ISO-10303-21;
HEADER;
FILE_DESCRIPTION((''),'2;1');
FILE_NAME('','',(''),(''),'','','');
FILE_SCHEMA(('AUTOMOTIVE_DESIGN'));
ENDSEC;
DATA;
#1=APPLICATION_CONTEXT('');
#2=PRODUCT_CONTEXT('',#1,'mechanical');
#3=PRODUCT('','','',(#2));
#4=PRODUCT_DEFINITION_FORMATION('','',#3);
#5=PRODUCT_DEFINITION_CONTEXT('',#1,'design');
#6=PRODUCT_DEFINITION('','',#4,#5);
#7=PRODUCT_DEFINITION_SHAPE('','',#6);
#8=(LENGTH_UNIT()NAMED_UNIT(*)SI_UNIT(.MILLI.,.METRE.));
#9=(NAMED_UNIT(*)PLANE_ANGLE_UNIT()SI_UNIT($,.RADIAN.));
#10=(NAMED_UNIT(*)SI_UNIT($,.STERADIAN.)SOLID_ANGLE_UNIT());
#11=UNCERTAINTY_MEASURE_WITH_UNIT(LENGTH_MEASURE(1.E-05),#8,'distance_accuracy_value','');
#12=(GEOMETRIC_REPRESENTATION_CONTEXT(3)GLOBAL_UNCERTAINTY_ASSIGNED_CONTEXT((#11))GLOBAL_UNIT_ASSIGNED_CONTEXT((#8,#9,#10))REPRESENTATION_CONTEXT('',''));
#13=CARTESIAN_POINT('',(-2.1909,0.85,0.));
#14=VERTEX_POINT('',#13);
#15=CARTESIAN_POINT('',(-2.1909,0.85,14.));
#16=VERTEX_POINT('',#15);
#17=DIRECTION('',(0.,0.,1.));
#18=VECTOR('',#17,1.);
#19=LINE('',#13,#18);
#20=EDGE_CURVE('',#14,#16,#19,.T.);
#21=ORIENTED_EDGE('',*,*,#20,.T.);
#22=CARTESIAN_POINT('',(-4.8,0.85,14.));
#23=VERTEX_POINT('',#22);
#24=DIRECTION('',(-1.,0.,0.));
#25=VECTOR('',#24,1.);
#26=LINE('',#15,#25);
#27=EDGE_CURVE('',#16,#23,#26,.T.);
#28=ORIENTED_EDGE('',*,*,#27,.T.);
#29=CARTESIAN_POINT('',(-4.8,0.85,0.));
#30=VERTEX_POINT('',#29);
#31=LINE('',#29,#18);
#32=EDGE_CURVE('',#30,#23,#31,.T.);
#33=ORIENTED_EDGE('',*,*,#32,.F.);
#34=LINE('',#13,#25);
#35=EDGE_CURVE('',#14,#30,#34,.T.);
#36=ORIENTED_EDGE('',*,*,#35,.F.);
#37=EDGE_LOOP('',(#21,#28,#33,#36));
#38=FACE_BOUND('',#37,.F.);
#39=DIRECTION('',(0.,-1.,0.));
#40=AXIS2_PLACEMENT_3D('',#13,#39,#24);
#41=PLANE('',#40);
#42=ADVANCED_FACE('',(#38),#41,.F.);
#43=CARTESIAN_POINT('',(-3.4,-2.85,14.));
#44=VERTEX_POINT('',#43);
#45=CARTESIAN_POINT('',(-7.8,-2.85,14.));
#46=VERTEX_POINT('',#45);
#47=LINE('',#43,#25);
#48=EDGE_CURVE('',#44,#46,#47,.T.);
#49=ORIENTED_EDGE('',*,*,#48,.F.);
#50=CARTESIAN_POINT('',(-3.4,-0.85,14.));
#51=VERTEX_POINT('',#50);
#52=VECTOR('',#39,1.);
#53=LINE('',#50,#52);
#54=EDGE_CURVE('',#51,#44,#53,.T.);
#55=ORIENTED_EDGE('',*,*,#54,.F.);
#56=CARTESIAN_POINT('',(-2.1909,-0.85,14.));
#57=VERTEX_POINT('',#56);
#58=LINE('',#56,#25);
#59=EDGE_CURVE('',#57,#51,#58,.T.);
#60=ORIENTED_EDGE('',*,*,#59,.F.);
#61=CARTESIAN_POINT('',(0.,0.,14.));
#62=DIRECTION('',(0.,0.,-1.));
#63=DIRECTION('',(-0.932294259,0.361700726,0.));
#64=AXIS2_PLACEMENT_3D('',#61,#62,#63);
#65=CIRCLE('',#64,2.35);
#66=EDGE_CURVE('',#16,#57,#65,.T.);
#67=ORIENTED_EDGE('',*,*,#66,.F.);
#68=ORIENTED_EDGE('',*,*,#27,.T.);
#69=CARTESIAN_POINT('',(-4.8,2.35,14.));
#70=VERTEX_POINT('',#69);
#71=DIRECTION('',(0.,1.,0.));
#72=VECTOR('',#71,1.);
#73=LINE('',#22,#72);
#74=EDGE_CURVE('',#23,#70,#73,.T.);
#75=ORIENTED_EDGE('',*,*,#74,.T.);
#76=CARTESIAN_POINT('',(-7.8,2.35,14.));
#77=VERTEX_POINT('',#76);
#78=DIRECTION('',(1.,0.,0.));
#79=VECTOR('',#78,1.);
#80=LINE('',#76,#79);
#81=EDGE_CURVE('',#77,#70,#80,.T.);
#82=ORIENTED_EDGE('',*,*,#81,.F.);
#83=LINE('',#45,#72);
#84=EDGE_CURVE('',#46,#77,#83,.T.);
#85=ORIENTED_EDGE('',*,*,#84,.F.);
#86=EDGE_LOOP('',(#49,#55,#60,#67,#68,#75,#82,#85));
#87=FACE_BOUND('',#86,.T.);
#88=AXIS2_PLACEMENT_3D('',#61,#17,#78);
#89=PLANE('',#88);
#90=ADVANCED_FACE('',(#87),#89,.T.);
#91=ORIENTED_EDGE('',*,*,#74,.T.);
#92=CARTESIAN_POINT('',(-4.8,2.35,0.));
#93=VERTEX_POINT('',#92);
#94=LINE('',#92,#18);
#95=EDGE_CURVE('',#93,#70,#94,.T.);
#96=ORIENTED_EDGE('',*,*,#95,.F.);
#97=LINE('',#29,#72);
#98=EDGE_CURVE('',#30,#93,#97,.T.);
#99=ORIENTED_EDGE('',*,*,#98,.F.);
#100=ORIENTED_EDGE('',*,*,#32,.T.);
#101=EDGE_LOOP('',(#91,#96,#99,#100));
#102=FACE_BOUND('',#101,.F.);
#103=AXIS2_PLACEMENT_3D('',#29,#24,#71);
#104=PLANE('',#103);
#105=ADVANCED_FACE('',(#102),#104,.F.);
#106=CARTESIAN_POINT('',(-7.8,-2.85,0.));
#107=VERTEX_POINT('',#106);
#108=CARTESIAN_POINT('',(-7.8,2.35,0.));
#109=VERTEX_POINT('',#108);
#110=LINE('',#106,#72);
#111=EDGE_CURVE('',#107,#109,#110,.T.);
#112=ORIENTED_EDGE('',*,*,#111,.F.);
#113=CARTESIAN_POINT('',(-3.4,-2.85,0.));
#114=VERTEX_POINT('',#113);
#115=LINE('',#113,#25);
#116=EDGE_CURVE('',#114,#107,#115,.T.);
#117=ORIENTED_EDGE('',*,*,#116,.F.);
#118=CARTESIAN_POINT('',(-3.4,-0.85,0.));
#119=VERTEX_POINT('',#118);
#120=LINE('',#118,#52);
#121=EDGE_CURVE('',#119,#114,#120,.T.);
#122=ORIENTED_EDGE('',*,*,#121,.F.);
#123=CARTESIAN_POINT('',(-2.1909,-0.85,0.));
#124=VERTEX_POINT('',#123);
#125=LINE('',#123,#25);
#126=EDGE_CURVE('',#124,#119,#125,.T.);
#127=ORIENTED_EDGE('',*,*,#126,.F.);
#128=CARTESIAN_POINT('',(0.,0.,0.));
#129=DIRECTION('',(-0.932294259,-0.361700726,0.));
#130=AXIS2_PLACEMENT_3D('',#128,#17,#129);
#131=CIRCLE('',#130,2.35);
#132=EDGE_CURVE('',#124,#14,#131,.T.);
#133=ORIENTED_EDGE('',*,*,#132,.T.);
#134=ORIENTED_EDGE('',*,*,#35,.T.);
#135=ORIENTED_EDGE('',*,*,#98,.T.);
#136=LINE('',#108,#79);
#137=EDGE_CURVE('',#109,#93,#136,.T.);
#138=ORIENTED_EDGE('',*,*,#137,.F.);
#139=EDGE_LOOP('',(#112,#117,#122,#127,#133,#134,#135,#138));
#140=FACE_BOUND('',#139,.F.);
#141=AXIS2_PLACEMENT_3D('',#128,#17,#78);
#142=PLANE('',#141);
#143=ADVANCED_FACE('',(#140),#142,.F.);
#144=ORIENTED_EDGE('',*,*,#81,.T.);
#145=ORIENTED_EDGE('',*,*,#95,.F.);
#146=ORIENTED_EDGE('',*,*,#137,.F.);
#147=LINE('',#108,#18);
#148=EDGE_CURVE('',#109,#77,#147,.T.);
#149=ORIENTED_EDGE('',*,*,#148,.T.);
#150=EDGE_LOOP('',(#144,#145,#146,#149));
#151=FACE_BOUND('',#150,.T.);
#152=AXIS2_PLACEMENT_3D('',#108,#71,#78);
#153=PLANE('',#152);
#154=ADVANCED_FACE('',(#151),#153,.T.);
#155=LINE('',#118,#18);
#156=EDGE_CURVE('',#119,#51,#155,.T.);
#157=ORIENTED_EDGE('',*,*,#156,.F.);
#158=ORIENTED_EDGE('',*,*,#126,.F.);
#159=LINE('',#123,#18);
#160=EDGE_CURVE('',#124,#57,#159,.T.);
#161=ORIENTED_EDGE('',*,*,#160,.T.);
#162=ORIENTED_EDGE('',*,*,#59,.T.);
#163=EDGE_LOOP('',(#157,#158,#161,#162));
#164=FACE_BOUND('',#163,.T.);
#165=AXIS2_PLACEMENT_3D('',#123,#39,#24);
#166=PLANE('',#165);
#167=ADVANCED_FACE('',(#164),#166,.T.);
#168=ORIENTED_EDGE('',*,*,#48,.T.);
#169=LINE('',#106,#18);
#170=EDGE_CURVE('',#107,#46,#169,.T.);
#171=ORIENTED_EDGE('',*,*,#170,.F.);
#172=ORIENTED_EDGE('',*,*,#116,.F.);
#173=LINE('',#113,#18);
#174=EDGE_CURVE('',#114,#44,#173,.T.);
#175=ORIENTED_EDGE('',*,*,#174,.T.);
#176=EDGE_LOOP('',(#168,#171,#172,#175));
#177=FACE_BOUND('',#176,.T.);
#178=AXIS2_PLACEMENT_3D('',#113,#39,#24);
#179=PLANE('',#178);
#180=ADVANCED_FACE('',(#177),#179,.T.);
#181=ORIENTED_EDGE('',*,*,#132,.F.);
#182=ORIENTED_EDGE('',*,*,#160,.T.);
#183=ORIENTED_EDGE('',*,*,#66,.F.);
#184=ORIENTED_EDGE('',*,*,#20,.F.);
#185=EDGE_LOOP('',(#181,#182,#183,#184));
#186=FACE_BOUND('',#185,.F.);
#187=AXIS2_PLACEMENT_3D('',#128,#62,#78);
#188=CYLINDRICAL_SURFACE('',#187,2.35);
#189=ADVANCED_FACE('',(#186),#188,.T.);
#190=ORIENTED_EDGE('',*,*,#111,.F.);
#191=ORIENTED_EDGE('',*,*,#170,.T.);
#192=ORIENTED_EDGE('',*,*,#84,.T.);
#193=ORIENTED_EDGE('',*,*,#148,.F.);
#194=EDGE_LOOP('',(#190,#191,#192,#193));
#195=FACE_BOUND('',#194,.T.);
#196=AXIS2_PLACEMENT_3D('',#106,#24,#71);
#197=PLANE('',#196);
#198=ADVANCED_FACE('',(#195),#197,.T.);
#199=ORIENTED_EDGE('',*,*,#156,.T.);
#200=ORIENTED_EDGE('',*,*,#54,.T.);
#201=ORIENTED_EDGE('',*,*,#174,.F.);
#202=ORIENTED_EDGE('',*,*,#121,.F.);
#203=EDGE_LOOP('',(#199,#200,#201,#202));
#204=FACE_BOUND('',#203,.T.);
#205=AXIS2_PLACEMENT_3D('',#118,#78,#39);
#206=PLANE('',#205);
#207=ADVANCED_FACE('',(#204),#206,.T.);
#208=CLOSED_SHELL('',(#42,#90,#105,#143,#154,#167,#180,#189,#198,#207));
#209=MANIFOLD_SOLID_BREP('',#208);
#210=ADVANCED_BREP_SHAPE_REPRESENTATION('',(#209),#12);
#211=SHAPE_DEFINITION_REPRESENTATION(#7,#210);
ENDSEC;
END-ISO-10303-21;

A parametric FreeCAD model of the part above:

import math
import FreeCAD as App
import Part
import Sketcher

V = App.Vector

doc = App.newDocument("Part")
body = doc.addObject("PartDesign::Body", "Body")

sketch1 = doc.addObject("Sketcher::SketchObject", "Sketch")
body.addObject(sketch1)
sketch1.AttachmentSupport = (doc.XY_Plane, [""])
sketch1.MapMode = "FlatFace"
sketch1.addGeometry(Part.ArcOfCircle(Part.Circle(V(0, 0, 0), V(0, 0, 1), 2.4), math.radians(-159), math.radians(159)), False)
sketch1.addGeometry(Part.LineSegment(V(-2.2, 0.8, 0), V(-4.8, 0.8, 0)), False)
sketch1.addGeometry(Part.LineSegment(V(-4.8, 0.8, 0), V(-4.8, 2.4, 0)), False)
sketch1.addGeometry(Part.LineSegment(V(-4.8, 2.4, 0), V(-7.8, 2.4, 0)), False)
sketch1.addGeometry(Part.LineSegment(V(-7.8, 2.4, 0), V(-7.8, -2.9, 0)), False)
sketch1.addGeometry(Part.LineSegment(V(-7.8, -2.9, 0), V(-3.4, -2.9, 0)), False)
sketch1.addGeometry(Part.LineSegment(V(-3.4, -2.9, 0), V(-3.4, -0.8, 0)), False)
sketch1.addGeometry(Part.LineSegment(V(-3.4, -0.8, 0), V(-2.2, -0.8, 0)), False)
sketch1.addConstraint(Sketcher.Constraint("Coincident", 0, 2, 1, 1))
sketch1.addConstraint(Sketcher.Constraint("Coincident", 1, 2, 2, 1))
sketch1.addConstraint(Sketcher.Constraint("Coincident", 2, 2, 3, 1))
sketch1.addConstraint(Sketcher.Constraint("Coincident", 3, 2, 4, 1))
sketch1.addConstraint(Sketcher.Constraint("Coincident", 4, 2, 5, 1))
sketch1.addConstraint(Sketcher.Constraint("Coincident", 5, 2, 6, 1))
sketch1.addConstraint(Sketcher.Constraint("Coincident", 6, 2, 7, 1))
sketch1.addConstraint(Sketcher.Constraint("Coincident", 7, 2, 0, 1))
sketch1.addConstraint(Sketcher.Constraint("Horizontal", 1))
sketch1.addConstraint(Sketcher.Constraint("Vertical", 2))
sketch1.addConstraint(Sketcher.Constraint("Horizontal", 3))
sketch1.addConstraint(Sketcher.Constraint("Vertical", 4))
sketch1.addConstraint(Sketcher.Constraint("Horizontal", 5))
sketch1.addConstraint(Sketcher.Constraint("Vertical", 6))
sketch1.addConstraint(Sketcher.Constraint("Horizontal", 7))
sketch1.addConstraint(Sketcher.Constraint("Coincident", 0, 3, -1, 1))
sketch1.addConstraint(Sketcher.Constraint("Vertical", 0, 2, 7, 2))
sketch1.addConstraint(Sketcher.Constraint("DistanceX", 3, 2, 3, 1, 3.0))
sketch1.addConstraint(Sketcher.Constraint("DistanceY", 6, 1, 6, 2, 2.0))
sketch1.addConstraint(Sketcher.Constraint("Radius", 0, 2.35))
sketch1.addConstraint(Sketcher.Constraint("DistanceX", 1, 2, -1, 1, 4.8))
sketch1.addConstraint(Sketcher.Constraint("DistanceX", 1, 2, 5, 2, 1.4))
sketch1.addConstraint(Sketcher.Constraint("DistanceY", 6, 2, 0, 2, 1.7))
sketch1.addConstraint(Sketcher.Constraint("DistanceY", -1, 1, 2, 2, 2.35))
pad1 = doc.addObject("PartDesign::Pad", "Pad")
body.addObject(pad1)
pad1.Profile = sketch1
pad1.Length = 14

doc.recompute()
